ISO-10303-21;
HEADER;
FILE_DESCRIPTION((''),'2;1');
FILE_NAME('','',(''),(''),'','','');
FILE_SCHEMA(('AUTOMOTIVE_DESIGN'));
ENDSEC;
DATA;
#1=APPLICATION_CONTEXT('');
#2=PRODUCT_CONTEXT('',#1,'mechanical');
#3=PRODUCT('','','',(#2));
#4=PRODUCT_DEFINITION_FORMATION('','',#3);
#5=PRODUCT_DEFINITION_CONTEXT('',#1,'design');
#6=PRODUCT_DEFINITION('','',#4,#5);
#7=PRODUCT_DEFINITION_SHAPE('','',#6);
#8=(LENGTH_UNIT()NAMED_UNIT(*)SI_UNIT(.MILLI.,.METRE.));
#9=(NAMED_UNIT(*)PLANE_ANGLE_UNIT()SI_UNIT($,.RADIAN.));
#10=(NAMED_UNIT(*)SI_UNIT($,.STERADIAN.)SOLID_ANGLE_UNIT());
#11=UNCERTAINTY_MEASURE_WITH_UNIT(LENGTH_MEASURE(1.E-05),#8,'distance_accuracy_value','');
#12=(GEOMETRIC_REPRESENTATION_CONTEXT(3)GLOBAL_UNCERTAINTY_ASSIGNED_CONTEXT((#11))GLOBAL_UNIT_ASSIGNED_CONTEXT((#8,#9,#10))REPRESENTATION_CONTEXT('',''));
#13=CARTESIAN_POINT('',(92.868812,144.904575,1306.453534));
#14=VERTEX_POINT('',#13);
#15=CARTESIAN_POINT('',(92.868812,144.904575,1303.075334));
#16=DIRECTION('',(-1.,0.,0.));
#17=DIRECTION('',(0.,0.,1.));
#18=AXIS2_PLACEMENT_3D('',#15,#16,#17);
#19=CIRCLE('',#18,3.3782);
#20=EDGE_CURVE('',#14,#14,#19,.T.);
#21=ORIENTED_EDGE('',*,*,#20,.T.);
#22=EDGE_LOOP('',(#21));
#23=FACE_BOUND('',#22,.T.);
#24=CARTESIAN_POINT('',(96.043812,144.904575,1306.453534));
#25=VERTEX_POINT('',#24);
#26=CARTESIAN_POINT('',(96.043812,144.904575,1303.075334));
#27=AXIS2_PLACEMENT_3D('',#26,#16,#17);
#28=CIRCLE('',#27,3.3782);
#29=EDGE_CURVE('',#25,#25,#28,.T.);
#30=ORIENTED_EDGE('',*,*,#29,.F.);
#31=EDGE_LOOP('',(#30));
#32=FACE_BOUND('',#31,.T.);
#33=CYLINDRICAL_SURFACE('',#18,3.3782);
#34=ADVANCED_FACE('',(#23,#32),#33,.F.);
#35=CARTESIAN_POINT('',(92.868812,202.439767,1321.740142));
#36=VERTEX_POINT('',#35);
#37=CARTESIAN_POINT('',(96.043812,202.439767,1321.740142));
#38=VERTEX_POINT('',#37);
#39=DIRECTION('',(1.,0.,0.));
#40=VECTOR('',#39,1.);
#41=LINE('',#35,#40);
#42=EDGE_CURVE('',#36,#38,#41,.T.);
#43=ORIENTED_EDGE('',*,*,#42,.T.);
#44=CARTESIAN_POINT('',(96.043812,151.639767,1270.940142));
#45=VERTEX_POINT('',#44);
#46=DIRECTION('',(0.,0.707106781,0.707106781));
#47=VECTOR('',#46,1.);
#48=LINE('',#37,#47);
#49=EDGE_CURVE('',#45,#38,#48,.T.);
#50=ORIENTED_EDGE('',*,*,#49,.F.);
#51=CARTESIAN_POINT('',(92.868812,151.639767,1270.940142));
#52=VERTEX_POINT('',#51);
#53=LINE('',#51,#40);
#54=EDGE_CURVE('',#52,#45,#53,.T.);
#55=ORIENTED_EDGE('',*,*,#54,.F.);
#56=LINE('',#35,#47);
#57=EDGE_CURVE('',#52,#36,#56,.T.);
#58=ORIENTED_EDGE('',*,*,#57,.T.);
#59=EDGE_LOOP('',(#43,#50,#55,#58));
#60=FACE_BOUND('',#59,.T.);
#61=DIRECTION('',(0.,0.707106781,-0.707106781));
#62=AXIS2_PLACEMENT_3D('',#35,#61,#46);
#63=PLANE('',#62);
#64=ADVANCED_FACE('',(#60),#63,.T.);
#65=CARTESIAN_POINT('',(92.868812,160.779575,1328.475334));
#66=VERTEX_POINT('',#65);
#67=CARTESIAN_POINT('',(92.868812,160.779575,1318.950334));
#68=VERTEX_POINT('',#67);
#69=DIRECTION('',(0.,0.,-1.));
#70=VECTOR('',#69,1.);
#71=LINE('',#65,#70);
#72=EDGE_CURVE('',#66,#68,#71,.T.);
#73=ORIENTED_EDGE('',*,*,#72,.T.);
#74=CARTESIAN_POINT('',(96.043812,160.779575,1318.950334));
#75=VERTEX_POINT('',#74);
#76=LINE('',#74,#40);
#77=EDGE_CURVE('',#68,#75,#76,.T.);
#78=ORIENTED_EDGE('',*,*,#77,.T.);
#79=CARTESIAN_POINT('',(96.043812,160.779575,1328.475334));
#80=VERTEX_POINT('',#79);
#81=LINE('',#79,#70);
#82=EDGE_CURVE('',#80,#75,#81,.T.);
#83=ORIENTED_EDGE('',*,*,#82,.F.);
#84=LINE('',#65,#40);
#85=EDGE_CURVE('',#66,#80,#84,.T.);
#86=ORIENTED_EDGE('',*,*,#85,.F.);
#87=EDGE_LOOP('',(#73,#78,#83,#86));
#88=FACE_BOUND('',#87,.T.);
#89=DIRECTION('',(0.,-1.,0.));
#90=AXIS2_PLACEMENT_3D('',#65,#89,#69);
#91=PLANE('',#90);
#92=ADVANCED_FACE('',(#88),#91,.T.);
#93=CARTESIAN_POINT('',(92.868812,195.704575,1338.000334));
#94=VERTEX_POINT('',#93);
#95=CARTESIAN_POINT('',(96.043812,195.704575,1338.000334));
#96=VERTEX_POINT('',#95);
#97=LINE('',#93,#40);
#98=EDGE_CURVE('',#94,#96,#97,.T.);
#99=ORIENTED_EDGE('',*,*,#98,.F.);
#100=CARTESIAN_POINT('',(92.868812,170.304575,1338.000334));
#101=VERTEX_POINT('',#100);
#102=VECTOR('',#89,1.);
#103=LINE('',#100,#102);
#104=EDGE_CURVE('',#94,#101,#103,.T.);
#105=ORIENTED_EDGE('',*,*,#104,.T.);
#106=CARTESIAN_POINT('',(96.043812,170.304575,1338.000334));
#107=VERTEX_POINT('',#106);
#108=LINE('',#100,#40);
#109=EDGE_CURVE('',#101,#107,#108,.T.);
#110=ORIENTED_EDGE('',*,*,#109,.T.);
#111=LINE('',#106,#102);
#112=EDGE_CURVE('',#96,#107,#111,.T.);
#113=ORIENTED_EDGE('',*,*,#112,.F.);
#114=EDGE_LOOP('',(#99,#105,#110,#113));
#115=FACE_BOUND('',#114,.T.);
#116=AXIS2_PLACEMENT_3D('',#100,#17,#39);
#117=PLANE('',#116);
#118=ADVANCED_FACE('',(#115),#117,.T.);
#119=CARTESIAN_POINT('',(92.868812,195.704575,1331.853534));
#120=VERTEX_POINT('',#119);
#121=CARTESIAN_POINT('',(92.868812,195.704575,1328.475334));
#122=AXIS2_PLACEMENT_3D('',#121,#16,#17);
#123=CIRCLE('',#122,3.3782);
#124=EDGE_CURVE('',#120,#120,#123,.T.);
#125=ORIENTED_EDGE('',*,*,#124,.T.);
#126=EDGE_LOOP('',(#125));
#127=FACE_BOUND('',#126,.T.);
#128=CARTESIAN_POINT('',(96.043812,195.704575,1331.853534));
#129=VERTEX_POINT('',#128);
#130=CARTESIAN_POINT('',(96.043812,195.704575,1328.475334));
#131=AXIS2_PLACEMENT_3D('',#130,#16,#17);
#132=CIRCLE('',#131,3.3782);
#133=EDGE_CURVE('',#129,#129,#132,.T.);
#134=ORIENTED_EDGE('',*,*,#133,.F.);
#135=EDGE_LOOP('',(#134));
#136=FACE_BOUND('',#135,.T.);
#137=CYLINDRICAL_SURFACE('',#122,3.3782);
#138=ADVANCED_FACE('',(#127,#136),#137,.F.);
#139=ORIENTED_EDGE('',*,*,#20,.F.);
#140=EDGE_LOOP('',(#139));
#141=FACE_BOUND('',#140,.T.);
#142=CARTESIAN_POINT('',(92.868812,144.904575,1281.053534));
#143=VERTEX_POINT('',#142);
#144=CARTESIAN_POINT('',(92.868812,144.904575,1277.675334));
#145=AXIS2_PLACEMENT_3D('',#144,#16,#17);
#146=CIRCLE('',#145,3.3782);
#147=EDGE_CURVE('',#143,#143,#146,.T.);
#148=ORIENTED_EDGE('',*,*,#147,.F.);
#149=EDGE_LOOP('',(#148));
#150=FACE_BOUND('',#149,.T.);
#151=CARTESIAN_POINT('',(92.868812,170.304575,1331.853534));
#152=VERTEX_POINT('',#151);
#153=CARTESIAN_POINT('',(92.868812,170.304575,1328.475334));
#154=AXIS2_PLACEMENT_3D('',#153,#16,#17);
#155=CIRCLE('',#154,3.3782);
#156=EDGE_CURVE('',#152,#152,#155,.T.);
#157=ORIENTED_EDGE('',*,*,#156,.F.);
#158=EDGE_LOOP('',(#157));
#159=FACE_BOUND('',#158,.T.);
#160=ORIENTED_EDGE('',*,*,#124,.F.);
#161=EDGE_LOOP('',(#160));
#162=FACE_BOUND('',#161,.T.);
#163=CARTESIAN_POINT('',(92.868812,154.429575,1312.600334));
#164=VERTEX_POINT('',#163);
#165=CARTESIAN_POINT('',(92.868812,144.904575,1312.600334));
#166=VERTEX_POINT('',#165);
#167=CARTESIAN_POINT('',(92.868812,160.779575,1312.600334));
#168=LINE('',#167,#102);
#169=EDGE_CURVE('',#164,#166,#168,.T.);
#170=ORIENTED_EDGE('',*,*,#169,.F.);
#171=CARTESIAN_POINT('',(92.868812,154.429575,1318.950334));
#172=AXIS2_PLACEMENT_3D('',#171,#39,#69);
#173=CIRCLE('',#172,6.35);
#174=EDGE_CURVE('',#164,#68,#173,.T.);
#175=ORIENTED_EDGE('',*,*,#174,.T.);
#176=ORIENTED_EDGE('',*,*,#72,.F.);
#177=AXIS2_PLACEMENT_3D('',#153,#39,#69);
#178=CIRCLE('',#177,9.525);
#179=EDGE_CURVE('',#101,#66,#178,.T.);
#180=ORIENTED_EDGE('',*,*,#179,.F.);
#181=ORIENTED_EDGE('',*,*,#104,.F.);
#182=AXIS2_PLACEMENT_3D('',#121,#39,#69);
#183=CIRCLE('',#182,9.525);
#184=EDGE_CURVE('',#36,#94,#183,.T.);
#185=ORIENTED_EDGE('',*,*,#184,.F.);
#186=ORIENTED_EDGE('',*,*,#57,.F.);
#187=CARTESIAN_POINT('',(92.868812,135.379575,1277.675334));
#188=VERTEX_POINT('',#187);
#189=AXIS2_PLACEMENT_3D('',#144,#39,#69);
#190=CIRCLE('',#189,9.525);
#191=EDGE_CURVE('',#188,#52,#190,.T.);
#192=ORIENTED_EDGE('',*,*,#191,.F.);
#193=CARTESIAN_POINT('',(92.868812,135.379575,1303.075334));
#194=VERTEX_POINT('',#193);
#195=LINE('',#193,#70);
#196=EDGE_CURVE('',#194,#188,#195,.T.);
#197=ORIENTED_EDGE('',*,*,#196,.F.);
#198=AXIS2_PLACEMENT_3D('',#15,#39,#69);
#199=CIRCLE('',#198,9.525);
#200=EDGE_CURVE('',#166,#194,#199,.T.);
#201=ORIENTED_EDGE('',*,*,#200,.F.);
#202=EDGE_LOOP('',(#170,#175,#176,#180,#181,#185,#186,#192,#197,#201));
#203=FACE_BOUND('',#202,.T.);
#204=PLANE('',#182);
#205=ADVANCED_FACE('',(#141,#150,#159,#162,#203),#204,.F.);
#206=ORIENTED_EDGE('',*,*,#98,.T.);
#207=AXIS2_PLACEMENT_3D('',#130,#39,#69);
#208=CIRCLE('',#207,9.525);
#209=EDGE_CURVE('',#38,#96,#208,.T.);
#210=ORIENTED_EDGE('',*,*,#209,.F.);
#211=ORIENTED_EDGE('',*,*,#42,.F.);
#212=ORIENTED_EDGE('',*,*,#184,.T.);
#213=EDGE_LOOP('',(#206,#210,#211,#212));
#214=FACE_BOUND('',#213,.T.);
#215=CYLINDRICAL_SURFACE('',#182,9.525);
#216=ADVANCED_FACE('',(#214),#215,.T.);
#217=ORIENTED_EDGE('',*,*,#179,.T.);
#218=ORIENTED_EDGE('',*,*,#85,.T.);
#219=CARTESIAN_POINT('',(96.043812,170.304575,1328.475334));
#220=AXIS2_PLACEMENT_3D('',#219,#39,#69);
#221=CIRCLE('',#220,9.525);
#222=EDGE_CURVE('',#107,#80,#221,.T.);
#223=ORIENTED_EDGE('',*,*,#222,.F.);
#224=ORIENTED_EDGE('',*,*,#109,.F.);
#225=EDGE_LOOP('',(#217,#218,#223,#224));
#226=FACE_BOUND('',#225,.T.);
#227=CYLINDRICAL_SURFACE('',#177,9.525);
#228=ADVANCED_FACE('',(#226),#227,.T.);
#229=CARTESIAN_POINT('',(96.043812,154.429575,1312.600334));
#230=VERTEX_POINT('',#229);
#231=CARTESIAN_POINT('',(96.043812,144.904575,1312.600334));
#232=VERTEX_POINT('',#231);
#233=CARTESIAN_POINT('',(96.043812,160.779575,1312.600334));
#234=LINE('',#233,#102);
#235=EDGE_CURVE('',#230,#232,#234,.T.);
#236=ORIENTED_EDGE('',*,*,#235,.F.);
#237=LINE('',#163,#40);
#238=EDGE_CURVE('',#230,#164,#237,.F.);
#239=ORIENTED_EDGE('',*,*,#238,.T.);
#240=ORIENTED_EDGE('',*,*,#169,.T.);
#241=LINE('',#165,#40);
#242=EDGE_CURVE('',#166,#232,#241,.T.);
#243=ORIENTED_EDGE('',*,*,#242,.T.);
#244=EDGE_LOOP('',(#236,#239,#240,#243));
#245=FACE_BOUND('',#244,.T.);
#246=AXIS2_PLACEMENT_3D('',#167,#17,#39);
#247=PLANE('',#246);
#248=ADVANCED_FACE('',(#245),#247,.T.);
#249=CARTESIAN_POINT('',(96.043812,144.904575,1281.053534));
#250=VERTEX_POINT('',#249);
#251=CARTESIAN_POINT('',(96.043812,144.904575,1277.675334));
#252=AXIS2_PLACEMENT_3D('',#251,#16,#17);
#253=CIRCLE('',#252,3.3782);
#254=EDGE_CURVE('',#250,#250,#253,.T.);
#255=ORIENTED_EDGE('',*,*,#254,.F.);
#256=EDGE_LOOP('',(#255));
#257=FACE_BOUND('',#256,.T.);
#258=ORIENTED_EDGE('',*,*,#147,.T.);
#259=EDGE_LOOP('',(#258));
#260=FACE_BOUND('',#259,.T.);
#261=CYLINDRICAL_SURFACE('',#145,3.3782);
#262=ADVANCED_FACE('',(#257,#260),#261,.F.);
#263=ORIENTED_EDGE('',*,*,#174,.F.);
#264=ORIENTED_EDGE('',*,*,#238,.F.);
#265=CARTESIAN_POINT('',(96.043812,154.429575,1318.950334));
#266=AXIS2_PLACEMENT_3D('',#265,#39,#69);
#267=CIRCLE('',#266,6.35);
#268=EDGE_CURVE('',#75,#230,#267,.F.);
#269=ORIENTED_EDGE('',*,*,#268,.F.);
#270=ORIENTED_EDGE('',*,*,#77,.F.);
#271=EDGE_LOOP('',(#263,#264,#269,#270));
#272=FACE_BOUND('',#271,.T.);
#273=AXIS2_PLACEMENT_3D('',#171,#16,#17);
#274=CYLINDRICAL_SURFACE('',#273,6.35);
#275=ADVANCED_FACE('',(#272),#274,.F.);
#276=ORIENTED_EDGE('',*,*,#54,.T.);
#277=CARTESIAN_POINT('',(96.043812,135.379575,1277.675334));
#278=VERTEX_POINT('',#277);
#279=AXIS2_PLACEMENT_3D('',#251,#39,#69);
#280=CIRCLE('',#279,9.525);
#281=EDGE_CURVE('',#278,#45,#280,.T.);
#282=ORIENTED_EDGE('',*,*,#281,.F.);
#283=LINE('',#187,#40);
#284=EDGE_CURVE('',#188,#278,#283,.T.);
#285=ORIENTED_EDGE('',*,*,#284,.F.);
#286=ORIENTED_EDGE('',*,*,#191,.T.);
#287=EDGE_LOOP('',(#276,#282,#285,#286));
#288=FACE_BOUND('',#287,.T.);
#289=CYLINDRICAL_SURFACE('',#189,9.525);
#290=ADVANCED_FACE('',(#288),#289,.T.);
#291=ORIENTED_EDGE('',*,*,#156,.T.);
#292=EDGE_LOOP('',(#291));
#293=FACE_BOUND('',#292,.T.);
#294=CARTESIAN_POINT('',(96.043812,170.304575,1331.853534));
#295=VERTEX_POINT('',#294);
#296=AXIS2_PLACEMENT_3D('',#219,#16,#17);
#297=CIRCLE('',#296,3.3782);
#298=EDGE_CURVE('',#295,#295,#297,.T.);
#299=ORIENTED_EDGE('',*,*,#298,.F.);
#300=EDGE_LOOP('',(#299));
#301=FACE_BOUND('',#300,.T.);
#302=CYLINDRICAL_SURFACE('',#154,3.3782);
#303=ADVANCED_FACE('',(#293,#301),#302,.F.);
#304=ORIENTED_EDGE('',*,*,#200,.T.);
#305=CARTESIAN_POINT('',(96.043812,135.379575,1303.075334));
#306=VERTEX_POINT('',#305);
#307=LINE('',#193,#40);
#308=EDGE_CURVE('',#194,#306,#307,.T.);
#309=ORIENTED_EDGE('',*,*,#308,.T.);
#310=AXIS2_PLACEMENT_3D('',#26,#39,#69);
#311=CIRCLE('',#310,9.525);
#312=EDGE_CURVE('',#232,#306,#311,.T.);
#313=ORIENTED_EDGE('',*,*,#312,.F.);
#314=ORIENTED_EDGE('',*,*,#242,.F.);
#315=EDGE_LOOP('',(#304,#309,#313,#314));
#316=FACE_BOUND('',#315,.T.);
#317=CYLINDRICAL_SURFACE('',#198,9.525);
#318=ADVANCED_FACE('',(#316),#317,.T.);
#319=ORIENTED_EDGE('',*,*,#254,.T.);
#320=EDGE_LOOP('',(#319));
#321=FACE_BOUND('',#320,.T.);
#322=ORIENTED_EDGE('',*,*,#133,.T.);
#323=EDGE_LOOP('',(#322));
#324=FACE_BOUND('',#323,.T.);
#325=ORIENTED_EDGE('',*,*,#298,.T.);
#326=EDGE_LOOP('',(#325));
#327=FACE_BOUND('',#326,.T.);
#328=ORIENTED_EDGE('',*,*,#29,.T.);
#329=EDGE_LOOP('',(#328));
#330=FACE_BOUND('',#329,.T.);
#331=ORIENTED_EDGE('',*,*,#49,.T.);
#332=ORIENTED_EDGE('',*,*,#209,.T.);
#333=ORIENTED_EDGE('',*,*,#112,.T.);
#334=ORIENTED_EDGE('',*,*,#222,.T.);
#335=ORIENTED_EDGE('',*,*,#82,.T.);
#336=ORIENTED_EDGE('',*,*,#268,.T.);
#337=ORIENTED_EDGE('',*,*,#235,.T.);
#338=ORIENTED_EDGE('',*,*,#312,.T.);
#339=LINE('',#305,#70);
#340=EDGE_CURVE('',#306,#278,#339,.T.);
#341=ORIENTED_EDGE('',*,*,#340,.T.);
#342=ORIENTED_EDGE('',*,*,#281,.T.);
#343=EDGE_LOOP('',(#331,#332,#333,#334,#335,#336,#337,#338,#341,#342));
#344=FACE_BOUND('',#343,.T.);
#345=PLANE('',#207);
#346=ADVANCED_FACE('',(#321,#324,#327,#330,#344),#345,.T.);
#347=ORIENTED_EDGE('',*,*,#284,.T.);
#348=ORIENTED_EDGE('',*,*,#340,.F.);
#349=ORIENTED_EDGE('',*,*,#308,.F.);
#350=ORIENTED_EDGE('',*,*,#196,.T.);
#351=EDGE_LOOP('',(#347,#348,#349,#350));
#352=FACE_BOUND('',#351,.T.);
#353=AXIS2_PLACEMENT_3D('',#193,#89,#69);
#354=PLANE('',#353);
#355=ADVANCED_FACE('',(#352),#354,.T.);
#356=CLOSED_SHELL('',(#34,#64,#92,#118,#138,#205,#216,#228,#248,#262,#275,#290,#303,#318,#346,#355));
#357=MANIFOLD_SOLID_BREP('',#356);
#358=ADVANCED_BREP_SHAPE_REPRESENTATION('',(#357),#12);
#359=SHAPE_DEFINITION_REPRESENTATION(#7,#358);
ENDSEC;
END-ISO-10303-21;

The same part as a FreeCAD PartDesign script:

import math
import FreeCAD as App
import Part
import Sketcher
Q = App.Units.Quantity


def edges_at(feature, points):
    """Names of the edges that pass closest to the given points."""
    edges = feature.Shape.Edges
    near = lambda p: min(range(len(edges)), key=lambda i: edges[i].distToShape(Part.Vertex(*p))[0])
    return sorted({f"Edge{near(p) + 1}" for p in points})

doc = App.newDocument("Part")
body = doc.addObject("PartDesign::Body", "Body")

# Sketch on YZ plane
sketch1 = body.newObject("Sketcher::SketchObject", "Sketch")
sketch1.AttachmentSupport = (doc.getObject("YZ_Plane"), [""])
sketch1.MapMode = "FlatFace"
sketch1.AttachmentOffset = App.Placement(App.Vector(0, 0, 92.868812), App.Rotation())
sketch1.addGeometry(Part.LineSegment(App.Vector(152, 1271, 0), App.Vector(202, 1322, 0)), False)
sketch1.addGeometry(Part.ArcOfCircle(Part.Circle(App.Vector(196, 1328, 0), App.Vector(0, 0, 1), 10), math.radians(-45), math.radians(90)), False)
sketch1.addGeometry(Part.LineSegment(App.Vector(196, 1338, 0), App.Vector(170, 1338, 0)), False)
sketch1.addGeometry(Part.ArcOfCircle(Part.Circle(App.Vector(170, 1328, 0), App.Vector(0, 0, 1), 10), math.radians(90), math.radians(180)), False)
sketch1.addGeometry(Part.LineSegment(App.Vector(161, 1328, 0), App.Vector(161, 1313, 0)), False)
sketch1.addGeometry(Part.LineSegment(App.Vector(161, 1313, 0), App.Vector(145, 1313, 0)), False)
sketch1.addGeometry(Part.ArcOfCircle(Part.Circle(App.Vector(145, 1303, 0), App.Vector(0, 0, 1), 10), math.radians(90), math.radians(180)), False)
sketch1.addGeometry(Part.LineSegment(App.Vector(135, 1303, 0), App.Vector(135, 1278, 0)), False)
sketch1.addGeometry(Part.ArcOfCircle(Part.Circle(App.Vector(145, 1278, 0), App.Vector(0, 0, 1), 10), math.radians(-180), math.radians(-45)), False)
sketch1.addConstraint(Sketcher.Constraint("Tangent", 0, 2, 1, 1))
sketch1.addConstraint(Sketcher.Constraint("Tangent", 1, 2, 2, 1))
sketch1.addConstraint(Sketcher.Constraint("Tangent", 2, 2, 3, 1))
sketch1.addConstraint(Sketcher.Constraint("Tangent", 3, 2, 4, 1))
sketch1.addConstraint(Sketcher.Constraint("Coincident", 4, 2, 5, 1))
sketch1.addConstraint(Sketcher.Constraint("Tangent", 5, 2, 6, 1))
sketch1.addConstraint(Sketcher.Constraint("Tangent", 6, 2, 7, 1))
sketch1.addConstraint(Sketcher.Constraint("Tangent", 7, 2, 8, 1))
sketch1.addConstraint(Sketcher.Constraint("Tangent", 8, 2, 0, 1))
sketch1.addConstraint(Sketcher.Constraint("Horizontal", 2))
sketch1.addConstraint(Sketcher.Constraint("Vertical", 4))
sketch1.addConstraint(Sketcher.Constraint("Horizontal", 5))
sketch1.addConstraint(Sketcher.Constraint("Vertical", 7))
sketch1.addConstraint(Sketcher.Constraint("Equal", 1, 3))
sketch1.addConstraint(Sketcher.Constraint("Equal", 3, 6))
sketch1.addConstraint(Sketcher.Constraint("Equal", 6, 8))
sketch1.addConstraint(Sketcher.Constraint("Equal", 5, 4))
sketch1.addConstraint(Sketcher.Constraint("Equal", 2, 7))
sketch1.addConstraint(Sketcher.Constraint("DistanceX", 2, 2, 2, 1, Q("1 in")))
sketch1.addConstraint(Sketcher.Constraint("Radius", 1, Q("0.375 in")))
sketch1.addConstraint(Sketcher.Constraint("DistanceX", 6, 3, 3, 3, Q("1 in")))
sketch1.addConstraint(Sketcher.Constraint("DistanceX", -1, 1, 1, 3, Q("195.704575 mm")))
sketch1.addConstraint(Sketcher.Constraint("DistanceY", -1, 1, 1, 3, Q("1328.475334 mm")))
pad1 = body.newObject("PartDesign::Pad", "Pad")
pad1.Profile = sketch1
pad1.Length = Q("0.125 in")

# Sketch on YZ plane
sketch2 = body.newObject("Sketcher::SketchObject", "Sketch001")
sketch2.AttachmentSupport = (doc.getObject("YZ_Plane"), [""])
sketch2.MapMode = "FlatFace"
sketch2.AttachmentOffset = App.Placement(App.Vector(0, 0, 92.868812), App.Rotation())
sketch2.addGeometry(Part.Circle(App.Vector(195.7, 1328.5, 0), App.Vector(0, 0, 1), 3.4), False)
sketch2.addGeometry(Part.Circle(App.Vector(170.3, 1328.5, 0), App.Vector(0, 0, 1), 3.4), False)
sketch2.addGeometry(Part.Circle(App.Vector(144.9, 1277.7, 0), App.Vector(0, 0, 1), 3.4), False)
sketch2.addGeometry(Part.Circle(App.Vector(144.9, 1303.1, 0), App.Vector(0, 0, 1), 3.4), False)
sketch2.addConstraint(Sketcher.Constraint("Equal", 0, 1))
sketch2.addConstraint(Sketcher.Constraint("Equal", 1, 2))
sketch2.addConstraint(Sketcher.Constraint("Equal", 2, 3))
sketch2.addConstraint(Sketcher.Constraint("Horizontal", 0, 3, 1, 3))
sketch2.addConstraint(Sketcher.Constraint("Vertical", 2, 3, 3, 3))
sketch2.addConstraint(Sketcher.Constraint("Diameter", 0, Q("0.266 in")))
sketch2.addConstraint(Sketcher.Constraint("DistanceX", 1, 3, 0, 3, Q("1 in")))
sketch2.addConstraint(Sketcher.Constraint("DistanceX", 2, 3, 1, 3, Q("1 in")))
sketch2.addConstraint(Sketcher.Constraint("DistanceY", 2, 3, 1, 3, Q("2 in")))
sketch2.addConstraint(Sketcher.Constraint("DistanceY", 2, 3, 3, 3, Q("1 in")))
sketch2.addConstraint(Sketcher.Constraint("DistanceX", -1, 1, 0, 3, Q("195.704575 mm")))
sketch2.addConstraint(Sketcher.Constraint("DistanceY", -1, 1, 0, 3, Q("1328.475334 mm")))
doc.recompute()
hole = body.newObject("PartDesign::Hole", "Hole")
hole.Profile = sketch2
hole.ThreadType = "None"
hole.Diameter = Q("0.266 in")
hole.DepthType = "ThroughAll"
hole.Reversed = True
doc.recompute()

fillet = body.newObject("PartDesign::Fillet", "Fillet")
fillet.Base = (hole, edges_at(hole, [(94.456, 160.78, 1312.6)]))
fillet.Radius = Q("0.25 in")

doc.recompute()
